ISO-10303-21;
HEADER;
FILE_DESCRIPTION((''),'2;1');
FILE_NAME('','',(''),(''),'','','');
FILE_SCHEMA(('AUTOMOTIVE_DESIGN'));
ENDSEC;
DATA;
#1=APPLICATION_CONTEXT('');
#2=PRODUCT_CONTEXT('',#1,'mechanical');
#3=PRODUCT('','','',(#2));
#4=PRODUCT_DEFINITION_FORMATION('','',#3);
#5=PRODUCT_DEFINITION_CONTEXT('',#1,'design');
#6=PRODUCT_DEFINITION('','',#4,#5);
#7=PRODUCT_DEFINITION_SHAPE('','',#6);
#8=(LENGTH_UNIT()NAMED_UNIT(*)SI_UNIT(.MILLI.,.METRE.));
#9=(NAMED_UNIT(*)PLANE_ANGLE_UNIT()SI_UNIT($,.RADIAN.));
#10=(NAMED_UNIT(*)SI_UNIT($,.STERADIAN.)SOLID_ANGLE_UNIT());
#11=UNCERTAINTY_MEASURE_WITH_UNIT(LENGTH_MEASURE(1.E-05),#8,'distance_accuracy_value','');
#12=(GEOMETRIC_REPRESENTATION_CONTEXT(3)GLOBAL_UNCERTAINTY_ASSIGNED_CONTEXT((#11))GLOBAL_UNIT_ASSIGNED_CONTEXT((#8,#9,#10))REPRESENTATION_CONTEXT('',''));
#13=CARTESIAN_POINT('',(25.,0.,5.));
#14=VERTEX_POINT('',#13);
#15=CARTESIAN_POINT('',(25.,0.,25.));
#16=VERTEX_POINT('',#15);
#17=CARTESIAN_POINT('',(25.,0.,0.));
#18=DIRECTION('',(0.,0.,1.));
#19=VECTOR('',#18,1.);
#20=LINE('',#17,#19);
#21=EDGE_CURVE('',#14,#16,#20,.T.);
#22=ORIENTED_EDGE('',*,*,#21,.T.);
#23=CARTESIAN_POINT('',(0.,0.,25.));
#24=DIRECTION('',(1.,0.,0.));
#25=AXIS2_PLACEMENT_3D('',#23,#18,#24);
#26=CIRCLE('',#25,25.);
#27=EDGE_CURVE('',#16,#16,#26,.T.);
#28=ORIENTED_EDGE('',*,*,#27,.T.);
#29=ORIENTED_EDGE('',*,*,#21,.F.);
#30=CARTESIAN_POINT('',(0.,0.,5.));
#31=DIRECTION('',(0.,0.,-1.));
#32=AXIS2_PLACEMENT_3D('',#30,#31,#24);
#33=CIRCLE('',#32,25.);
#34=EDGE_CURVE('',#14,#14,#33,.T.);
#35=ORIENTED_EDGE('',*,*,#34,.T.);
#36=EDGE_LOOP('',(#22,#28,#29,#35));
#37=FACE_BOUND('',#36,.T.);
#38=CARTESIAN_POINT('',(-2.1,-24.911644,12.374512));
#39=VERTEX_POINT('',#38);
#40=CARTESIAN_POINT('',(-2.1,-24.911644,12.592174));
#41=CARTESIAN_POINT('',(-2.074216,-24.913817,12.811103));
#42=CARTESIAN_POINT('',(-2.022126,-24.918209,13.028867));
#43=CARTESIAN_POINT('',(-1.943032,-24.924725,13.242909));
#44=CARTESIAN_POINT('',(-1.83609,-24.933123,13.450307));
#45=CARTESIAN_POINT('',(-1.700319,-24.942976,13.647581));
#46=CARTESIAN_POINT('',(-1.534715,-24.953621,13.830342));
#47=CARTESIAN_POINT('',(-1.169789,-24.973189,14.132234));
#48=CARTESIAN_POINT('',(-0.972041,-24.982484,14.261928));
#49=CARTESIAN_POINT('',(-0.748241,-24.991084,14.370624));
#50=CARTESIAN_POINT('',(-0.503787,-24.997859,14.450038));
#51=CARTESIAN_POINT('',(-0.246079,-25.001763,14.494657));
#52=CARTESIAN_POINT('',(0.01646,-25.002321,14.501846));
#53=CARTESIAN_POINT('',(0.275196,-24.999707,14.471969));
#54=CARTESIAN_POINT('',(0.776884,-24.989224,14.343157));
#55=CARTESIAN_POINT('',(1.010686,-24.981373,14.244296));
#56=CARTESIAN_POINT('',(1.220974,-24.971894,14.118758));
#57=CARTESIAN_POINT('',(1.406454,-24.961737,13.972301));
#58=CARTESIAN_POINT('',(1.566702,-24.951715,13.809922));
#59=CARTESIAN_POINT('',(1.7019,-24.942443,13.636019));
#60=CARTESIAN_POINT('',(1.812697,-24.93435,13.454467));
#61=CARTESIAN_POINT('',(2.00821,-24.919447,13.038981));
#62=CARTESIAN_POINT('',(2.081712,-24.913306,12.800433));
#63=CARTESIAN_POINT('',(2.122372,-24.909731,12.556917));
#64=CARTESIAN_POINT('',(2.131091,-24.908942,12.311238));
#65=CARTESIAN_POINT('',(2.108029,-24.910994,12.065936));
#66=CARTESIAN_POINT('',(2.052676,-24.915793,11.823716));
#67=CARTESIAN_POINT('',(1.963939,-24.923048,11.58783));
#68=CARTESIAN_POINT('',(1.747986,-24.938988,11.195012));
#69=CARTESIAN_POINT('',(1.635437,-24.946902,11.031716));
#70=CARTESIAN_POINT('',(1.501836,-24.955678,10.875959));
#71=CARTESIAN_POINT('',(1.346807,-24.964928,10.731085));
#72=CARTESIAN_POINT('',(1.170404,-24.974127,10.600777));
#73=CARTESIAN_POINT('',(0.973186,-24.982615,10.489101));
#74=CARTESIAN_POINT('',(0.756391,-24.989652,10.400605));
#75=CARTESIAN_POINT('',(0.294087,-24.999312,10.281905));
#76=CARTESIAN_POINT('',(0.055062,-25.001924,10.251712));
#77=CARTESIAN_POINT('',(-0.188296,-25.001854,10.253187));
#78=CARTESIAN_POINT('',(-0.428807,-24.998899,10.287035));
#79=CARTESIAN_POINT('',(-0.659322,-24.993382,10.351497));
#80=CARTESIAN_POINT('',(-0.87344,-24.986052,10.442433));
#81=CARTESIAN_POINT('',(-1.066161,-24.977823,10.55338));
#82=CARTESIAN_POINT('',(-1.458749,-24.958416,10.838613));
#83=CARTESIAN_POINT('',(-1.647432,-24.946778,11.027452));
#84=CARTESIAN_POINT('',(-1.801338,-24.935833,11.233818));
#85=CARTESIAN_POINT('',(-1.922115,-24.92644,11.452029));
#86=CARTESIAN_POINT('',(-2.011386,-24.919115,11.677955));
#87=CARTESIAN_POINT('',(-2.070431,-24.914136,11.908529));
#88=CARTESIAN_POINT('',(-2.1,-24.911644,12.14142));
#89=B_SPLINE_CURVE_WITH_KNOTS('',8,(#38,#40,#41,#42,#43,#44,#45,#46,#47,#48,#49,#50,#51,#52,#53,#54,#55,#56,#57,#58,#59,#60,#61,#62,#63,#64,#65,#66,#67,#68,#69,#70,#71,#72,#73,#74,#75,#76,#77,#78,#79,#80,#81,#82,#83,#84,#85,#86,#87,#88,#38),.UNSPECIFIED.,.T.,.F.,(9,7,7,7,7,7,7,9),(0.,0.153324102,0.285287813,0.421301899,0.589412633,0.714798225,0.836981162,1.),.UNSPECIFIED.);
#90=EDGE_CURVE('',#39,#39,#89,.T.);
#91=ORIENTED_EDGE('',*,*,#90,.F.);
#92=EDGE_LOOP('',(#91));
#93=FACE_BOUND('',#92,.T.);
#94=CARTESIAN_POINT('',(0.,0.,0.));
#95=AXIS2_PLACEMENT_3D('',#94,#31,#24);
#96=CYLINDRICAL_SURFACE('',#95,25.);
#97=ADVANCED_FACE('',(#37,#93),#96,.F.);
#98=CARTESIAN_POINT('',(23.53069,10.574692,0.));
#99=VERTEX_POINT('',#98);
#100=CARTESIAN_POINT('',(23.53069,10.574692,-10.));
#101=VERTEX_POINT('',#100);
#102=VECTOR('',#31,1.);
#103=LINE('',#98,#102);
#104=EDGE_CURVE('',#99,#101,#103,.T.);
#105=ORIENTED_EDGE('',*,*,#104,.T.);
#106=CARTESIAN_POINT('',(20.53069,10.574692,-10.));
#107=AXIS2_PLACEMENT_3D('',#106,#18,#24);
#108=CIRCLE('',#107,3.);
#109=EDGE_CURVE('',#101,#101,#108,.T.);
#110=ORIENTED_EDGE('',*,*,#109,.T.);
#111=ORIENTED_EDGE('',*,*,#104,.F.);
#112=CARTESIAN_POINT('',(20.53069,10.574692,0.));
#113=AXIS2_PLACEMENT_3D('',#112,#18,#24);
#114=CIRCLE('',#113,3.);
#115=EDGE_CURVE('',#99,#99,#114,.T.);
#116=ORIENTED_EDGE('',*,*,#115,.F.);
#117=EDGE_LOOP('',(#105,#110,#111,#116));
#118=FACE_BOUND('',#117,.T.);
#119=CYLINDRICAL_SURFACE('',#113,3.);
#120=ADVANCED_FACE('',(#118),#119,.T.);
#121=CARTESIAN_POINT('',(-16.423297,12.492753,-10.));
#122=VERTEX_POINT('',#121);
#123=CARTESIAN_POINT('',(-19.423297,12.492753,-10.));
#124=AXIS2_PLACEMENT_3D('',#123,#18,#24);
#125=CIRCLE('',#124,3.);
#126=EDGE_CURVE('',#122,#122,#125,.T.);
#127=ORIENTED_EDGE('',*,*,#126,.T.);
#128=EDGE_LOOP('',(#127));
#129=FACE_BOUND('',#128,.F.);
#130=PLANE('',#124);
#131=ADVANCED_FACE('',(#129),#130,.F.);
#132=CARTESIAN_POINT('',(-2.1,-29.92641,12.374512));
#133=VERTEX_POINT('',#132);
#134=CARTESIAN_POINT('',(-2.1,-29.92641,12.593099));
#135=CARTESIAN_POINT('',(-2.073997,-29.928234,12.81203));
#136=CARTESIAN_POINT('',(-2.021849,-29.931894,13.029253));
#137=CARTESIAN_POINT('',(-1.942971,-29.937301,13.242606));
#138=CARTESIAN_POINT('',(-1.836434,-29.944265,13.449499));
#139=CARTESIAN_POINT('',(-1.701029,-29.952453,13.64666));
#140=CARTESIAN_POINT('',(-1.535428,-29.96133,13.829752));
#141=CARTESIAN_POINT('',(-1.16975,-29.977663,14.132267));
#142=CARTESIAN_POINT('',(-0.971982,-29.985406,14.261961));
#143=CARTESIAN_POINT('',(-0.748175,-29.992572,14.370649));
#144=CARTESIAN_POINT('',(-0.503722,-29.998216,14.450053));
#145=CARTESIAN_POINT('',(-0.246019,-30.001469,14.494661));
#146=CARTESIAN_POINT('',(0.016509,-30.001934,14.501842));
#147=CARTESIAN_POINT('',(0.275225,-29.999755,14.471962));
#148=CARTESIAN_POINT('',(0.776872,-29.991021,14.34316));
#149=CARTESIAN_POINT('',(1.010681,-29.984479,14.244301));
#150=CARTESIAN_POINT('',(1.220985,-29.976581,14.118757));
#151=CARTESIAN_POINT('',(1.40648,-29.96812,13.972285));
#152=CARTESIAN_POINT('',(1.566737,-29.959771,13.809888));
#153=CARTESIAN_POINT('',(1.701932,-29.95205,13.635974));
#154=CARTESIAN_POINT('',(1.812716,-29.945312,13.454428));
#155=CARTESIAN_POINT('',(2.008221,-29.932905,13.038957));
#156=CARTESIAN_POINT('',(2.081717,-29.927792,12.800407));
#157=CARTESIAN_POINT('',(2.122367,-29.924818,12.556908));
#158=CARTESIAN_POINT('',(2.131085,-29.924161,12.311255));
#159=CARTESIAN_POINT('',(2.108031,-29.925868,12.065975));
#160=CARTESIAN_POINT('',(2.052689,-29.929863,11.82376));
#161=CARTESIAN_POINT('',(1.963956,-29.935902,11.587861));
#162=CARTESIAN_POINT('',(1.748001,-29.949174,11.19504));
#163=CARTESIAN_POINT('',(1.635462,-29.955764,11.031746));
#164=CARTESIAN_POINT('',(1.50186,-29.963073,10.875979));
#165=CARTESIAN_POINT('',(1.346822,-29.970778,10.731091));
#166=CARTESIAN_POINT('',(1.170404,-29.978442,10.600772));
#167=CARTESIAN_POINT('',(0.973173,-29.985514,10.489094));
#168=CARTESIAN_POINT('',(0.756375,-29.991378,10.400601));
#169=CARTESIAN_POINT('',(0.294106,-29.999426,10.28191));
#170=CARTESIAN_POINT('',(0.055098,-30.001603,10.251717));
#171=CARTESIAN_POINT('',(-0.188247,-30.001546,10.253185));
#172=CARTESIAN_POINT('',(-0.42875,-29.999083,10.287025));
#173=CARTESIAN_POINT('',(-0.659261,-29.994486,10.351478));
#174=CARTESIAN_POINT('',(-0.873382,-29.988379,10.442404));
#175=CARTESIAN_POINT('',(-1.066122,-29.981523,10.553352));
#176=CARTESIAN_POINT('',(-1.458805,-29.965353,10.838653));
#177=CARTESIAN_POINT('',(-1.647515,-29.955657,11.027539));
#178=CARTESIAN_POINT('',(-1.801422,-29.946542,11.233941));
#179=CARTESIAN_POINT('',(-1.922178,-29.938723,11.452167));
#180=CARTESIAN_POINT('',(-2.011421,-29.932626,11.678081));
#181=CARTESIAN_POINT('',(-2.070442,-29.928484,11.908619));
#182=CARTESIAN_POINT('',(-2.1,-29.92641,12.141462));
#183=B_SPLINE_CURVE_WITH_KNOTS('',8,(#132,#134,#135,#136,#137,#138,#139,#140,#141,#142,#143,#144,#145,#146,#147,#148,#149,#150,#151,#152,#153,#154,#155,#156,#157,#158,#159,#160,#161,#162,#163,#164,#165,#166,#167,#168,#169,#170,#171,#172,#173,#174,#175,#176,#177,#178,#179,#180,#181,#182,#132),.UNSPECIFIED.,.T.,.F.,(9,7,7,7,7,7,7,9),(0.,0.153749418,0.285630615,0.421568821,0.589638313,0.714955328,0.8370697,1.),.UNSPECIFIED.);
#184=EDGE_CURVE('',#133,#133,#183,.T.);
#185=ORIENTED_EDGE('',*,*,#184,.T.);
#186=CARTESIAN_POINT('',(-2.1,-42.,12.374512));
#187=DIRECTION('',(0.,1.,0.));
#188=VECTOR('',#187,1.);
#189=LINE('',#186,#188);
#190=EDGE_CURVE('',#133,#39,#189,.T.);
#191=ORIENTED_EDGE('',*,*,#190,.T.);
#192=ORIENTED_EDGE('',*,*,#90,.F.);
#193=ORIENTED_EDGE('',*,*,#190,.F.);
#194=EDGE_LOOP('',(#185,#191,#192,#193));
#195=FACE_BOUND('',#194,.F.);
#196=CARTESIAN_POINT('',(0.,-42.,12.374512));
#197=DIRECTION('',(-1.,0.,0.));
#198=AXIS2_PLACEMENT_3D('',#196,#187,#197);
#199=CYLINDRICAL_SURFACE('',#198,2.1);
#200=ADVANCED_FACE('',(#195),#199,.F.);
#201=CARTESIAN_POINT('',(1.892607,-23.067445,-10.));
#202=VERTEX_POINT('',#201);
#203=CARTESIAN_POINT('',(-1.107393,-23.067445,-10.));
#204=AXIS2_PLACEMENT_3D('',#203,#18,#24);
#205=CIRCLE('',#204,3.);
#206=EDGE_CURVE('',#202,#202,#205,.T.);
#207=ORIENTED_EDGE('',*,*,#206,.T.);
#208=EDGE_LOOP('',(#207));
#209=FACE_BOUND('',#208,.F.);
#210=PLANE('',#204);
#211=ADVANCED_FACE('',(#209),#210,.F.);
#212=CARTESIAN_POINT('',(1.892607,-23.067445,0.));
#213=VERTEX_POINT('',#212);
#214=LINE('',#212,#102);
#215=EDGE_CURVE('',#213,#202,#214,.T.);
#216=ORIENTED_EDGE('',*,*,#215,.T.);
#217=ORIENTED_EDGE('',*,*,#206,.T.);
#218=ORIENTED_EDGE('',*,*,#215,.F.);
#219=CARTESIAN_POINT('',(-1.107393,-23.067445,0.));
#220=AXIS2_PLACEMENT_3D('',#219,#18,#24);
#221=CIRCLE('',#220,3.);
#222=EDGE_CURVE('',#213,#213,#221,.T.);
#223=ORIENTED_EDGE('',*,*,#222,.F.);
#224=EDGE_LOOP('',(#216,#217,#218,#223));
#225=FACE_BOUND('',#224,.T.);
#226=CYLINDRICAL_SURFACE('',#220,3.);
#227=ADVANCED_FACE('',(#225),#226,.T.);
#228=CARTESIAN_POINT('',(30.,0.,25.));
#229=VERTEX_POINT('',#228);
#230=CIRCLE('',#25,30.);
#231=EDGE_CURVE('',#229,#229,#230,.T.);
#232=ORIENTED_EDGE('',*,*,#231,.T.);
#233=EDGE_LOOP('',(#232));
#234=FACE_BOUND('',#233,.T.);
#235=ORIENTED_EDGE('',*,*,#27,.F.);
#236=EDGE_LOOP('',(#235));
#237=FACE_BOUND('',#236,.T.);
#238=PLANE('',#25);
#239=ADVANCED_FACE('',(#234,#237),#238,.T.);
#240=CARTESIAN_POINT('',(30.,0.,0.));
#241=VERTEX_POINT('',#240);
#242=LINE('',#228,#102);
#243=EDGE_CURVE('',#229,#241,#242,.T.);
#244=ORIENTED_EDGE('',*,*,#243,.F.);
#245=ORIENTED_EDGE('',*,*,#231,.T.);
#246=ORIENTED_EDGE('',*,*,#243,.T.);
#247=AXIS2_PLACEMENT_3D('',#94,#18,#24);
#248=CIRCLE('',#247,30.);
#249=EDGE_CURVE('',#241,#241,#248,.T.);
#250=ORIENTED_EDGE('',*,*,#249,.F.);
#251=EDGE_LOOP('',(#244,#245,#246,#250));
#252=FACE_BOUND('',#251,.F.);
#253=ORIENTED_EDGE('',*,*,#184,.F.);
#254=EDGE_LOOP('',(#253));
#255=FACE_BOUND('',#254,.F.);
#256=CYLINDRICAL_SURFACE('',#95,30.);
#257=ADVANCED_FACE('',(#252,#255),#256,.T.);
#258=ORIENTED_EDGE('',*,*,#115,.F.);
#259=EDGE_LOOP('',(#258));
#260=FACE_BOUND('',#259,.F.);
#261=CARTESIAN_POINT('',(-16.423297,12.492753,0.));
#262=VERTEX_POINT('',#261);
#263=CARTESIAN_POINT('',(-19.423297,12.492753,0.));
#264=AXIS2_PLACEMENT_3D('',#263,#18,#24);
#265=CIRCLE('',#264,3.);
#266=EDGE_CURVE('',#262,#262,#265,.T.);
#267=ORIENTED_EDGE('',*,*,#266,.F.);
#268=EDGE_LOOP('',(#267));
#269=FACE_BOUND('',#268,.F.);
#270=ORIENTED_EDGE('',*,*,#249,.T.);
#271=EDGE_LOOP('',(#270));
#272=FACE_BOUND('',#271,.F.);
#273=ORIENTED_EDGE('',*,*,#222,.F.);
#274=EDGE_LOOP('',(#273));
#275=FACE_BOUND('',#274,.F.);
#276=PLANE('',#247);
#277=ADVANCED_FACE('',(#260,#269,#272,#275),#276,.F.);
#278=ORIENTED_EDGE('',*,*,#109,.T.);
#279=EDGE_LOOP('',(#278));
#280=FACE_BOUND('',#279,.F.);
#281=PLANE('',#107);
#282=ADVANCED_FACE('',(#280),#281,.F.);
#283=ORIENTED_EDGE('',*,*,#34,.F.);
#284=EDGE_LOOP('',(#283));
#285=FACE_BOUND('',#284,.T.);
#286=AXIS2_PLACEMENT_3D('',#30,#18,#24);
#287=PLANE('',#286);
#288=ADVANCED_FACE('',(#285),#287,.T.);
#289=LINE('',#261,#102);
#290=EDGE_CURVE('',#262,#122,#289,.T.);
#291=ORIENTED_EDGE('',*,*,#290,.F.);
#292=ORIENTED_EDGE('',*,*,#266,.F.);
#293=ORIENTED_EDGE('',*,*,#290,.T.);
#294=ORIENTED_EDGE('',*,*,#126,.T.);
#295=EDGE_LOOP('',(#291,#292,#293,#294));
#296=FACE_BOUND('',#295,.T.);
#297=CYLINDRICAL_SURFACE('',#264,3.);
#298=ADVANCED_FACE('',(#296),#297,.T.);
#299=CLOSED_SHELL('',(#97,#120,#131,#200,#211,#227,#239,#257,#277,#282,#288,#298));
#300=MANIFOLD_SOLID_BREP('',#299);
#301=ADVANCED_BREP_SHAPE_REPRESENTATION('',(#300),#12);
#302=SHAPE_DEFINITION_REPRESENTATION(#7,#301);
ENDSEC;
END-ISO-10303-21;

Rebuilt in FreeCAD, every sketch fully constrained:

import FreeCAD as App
import Part
import Sketcher
from FreeCAD import Vector
Q = App.Units.Quantity

doc = App.newDocument("Part")
body = doc.addObject("PartDesign::Body", "Body")

sketch1 = body.newObject("Sketcher::SketchObject", "Sketch")
sketch1.AttachmentSupport = (doc.getObject("XY_Plane"), [""])
sketch1.MapMode = "FlatFace"
sketch1.addGeometry([
    Part.Circle(Vector(0, 0, 0), Vector(0, 0, 1), 30),
    Part.Circle(Vector(0, 0, 0), Vector(0, 0, 1), 25),
], False)
sketch1.addConstraint([
    Sketcher.Constraint("Coincident", 0, 3, -1, 1),
    Sketcher.Constraint("Coincident", 1, 3, -1, 1),
    Sketcher.Constraint("Diameter", 0, Q("60 mm")),
    Sketcher.Constraint("Diameter", 1, Q("50 mm")),
])
pad1 = body.newObject("PartDesign::Pad", "Pad")
pad1.Profile = sketch1
pad1.Length = 25

sketch2 = body.newObject("Sketcher::SketchObject", "Sketch001")
sketch2.AttachmentSupport = (doc.getObject("XY_Plane"), [""])
sketch2.MapMode = "FlatFace"
sketch2.addGeometry(Part.Circle(Vector(0, 0, 0), Vector(0, 0, 1), 30), False)
sketch2.addConstraint([
    Sketcher.Constraint("Coincident", 0, 3, -1, 1),
    Sketcher.Constraint("Diameter", 0, Q("60 mm")),
])
pad2 = body.newObject("PartDesign::Pad", "Pad001")
pad2.Profile = sketch2
pad2.Length = 5

sketch3 = body.newObject("Sketcher::SketchObject", "Sketch002")
sketch3.AttachmentSupport = (doc.getObject("XY_Plane"), [""])
sketch3.MapMode = "FlatFace"
sketch3.addGeometry([
    Part.Circle(Vector(-1.1, -23.1, 0), Vector(0, 0, 1), 3),
    Part.Circle(Vector(-19.4, 12.5, 0), Vector(0, 0, 1), 3),
    Part.Circle(Vector(20.5, 10.6, 0), Vector(0, 0, 1), 3),
], False)
sketch3.addConstraint([
    Sketcher.Constraint("Equal", 0, 1),
    Sketcher.Constraint("Equal", 1, 2),
    Sketcher.Constraint("Diameter", 0, Q("6 mm")),
    Sketcher.Constraint("DistanceX", -1, 1, 2, 3, Q("20.53069 mm")),
    Sketcher.Constraint("DistanceY", 2, 3, 1, 3, Q("1.918061 mm")),
    Sketcher.Constraint("DistanceX", 0, 3, -1, 1, Q("1.107393 mm")),
    Sketcher.Constraint("DistanceY", 0, 3, -1, 1, Q("23.067445 mm")),
    Sketcher.Constraint("DistanceX", 1, 3, -1, 1, Q("19.423297 mm")),
    Sketcher.Constraint("DistanceY", -1, 1, 1, 3, Q("12.492753 mm")),
])
pad3 = body.newObject("PartDesign::Pad", "Pad002")
pad3.Profile = sketch3
pad3.Length = 10
pad3.Reversed = True

sketch4 = body.newObject("Sketcher::SketchObject", "Sketch003")
sketch4.AttachmentSupport = (doc.getObject("XZ_Plane"), [""])
sketch4.MapMode = "FlatFace"
sketch4.AttachmentOffset = App.Placement(Vector(0, 0, 30), App.Rotation())
sketch4.addGeometry(Part.Circle(Vector(0, 12.4, 0), Vector(0, 0, 1), 2.1), False)
sketch4.addConstraint([
    Sketcher.Constraint("PointOnObject", 0, 3, -2),
    Sketcher.Constraint("Diameter", 0, Q("4.2 mm")),
    Sketcher.Constraint("DistanceY", -1, 1, 0, 3, Q("12.374512 mm")),
])
doc.recompute()
hole = body.newObject("PartDesign::Hole", "Hole")
hole.Profile = sketch4
hole.ThreadType = "None"
hole.Diameter = 4.2
hole.DepthType = "Dimension"
hole.Depth = 12
hole.DrillPoint = "Flat"

doc.recompute()
